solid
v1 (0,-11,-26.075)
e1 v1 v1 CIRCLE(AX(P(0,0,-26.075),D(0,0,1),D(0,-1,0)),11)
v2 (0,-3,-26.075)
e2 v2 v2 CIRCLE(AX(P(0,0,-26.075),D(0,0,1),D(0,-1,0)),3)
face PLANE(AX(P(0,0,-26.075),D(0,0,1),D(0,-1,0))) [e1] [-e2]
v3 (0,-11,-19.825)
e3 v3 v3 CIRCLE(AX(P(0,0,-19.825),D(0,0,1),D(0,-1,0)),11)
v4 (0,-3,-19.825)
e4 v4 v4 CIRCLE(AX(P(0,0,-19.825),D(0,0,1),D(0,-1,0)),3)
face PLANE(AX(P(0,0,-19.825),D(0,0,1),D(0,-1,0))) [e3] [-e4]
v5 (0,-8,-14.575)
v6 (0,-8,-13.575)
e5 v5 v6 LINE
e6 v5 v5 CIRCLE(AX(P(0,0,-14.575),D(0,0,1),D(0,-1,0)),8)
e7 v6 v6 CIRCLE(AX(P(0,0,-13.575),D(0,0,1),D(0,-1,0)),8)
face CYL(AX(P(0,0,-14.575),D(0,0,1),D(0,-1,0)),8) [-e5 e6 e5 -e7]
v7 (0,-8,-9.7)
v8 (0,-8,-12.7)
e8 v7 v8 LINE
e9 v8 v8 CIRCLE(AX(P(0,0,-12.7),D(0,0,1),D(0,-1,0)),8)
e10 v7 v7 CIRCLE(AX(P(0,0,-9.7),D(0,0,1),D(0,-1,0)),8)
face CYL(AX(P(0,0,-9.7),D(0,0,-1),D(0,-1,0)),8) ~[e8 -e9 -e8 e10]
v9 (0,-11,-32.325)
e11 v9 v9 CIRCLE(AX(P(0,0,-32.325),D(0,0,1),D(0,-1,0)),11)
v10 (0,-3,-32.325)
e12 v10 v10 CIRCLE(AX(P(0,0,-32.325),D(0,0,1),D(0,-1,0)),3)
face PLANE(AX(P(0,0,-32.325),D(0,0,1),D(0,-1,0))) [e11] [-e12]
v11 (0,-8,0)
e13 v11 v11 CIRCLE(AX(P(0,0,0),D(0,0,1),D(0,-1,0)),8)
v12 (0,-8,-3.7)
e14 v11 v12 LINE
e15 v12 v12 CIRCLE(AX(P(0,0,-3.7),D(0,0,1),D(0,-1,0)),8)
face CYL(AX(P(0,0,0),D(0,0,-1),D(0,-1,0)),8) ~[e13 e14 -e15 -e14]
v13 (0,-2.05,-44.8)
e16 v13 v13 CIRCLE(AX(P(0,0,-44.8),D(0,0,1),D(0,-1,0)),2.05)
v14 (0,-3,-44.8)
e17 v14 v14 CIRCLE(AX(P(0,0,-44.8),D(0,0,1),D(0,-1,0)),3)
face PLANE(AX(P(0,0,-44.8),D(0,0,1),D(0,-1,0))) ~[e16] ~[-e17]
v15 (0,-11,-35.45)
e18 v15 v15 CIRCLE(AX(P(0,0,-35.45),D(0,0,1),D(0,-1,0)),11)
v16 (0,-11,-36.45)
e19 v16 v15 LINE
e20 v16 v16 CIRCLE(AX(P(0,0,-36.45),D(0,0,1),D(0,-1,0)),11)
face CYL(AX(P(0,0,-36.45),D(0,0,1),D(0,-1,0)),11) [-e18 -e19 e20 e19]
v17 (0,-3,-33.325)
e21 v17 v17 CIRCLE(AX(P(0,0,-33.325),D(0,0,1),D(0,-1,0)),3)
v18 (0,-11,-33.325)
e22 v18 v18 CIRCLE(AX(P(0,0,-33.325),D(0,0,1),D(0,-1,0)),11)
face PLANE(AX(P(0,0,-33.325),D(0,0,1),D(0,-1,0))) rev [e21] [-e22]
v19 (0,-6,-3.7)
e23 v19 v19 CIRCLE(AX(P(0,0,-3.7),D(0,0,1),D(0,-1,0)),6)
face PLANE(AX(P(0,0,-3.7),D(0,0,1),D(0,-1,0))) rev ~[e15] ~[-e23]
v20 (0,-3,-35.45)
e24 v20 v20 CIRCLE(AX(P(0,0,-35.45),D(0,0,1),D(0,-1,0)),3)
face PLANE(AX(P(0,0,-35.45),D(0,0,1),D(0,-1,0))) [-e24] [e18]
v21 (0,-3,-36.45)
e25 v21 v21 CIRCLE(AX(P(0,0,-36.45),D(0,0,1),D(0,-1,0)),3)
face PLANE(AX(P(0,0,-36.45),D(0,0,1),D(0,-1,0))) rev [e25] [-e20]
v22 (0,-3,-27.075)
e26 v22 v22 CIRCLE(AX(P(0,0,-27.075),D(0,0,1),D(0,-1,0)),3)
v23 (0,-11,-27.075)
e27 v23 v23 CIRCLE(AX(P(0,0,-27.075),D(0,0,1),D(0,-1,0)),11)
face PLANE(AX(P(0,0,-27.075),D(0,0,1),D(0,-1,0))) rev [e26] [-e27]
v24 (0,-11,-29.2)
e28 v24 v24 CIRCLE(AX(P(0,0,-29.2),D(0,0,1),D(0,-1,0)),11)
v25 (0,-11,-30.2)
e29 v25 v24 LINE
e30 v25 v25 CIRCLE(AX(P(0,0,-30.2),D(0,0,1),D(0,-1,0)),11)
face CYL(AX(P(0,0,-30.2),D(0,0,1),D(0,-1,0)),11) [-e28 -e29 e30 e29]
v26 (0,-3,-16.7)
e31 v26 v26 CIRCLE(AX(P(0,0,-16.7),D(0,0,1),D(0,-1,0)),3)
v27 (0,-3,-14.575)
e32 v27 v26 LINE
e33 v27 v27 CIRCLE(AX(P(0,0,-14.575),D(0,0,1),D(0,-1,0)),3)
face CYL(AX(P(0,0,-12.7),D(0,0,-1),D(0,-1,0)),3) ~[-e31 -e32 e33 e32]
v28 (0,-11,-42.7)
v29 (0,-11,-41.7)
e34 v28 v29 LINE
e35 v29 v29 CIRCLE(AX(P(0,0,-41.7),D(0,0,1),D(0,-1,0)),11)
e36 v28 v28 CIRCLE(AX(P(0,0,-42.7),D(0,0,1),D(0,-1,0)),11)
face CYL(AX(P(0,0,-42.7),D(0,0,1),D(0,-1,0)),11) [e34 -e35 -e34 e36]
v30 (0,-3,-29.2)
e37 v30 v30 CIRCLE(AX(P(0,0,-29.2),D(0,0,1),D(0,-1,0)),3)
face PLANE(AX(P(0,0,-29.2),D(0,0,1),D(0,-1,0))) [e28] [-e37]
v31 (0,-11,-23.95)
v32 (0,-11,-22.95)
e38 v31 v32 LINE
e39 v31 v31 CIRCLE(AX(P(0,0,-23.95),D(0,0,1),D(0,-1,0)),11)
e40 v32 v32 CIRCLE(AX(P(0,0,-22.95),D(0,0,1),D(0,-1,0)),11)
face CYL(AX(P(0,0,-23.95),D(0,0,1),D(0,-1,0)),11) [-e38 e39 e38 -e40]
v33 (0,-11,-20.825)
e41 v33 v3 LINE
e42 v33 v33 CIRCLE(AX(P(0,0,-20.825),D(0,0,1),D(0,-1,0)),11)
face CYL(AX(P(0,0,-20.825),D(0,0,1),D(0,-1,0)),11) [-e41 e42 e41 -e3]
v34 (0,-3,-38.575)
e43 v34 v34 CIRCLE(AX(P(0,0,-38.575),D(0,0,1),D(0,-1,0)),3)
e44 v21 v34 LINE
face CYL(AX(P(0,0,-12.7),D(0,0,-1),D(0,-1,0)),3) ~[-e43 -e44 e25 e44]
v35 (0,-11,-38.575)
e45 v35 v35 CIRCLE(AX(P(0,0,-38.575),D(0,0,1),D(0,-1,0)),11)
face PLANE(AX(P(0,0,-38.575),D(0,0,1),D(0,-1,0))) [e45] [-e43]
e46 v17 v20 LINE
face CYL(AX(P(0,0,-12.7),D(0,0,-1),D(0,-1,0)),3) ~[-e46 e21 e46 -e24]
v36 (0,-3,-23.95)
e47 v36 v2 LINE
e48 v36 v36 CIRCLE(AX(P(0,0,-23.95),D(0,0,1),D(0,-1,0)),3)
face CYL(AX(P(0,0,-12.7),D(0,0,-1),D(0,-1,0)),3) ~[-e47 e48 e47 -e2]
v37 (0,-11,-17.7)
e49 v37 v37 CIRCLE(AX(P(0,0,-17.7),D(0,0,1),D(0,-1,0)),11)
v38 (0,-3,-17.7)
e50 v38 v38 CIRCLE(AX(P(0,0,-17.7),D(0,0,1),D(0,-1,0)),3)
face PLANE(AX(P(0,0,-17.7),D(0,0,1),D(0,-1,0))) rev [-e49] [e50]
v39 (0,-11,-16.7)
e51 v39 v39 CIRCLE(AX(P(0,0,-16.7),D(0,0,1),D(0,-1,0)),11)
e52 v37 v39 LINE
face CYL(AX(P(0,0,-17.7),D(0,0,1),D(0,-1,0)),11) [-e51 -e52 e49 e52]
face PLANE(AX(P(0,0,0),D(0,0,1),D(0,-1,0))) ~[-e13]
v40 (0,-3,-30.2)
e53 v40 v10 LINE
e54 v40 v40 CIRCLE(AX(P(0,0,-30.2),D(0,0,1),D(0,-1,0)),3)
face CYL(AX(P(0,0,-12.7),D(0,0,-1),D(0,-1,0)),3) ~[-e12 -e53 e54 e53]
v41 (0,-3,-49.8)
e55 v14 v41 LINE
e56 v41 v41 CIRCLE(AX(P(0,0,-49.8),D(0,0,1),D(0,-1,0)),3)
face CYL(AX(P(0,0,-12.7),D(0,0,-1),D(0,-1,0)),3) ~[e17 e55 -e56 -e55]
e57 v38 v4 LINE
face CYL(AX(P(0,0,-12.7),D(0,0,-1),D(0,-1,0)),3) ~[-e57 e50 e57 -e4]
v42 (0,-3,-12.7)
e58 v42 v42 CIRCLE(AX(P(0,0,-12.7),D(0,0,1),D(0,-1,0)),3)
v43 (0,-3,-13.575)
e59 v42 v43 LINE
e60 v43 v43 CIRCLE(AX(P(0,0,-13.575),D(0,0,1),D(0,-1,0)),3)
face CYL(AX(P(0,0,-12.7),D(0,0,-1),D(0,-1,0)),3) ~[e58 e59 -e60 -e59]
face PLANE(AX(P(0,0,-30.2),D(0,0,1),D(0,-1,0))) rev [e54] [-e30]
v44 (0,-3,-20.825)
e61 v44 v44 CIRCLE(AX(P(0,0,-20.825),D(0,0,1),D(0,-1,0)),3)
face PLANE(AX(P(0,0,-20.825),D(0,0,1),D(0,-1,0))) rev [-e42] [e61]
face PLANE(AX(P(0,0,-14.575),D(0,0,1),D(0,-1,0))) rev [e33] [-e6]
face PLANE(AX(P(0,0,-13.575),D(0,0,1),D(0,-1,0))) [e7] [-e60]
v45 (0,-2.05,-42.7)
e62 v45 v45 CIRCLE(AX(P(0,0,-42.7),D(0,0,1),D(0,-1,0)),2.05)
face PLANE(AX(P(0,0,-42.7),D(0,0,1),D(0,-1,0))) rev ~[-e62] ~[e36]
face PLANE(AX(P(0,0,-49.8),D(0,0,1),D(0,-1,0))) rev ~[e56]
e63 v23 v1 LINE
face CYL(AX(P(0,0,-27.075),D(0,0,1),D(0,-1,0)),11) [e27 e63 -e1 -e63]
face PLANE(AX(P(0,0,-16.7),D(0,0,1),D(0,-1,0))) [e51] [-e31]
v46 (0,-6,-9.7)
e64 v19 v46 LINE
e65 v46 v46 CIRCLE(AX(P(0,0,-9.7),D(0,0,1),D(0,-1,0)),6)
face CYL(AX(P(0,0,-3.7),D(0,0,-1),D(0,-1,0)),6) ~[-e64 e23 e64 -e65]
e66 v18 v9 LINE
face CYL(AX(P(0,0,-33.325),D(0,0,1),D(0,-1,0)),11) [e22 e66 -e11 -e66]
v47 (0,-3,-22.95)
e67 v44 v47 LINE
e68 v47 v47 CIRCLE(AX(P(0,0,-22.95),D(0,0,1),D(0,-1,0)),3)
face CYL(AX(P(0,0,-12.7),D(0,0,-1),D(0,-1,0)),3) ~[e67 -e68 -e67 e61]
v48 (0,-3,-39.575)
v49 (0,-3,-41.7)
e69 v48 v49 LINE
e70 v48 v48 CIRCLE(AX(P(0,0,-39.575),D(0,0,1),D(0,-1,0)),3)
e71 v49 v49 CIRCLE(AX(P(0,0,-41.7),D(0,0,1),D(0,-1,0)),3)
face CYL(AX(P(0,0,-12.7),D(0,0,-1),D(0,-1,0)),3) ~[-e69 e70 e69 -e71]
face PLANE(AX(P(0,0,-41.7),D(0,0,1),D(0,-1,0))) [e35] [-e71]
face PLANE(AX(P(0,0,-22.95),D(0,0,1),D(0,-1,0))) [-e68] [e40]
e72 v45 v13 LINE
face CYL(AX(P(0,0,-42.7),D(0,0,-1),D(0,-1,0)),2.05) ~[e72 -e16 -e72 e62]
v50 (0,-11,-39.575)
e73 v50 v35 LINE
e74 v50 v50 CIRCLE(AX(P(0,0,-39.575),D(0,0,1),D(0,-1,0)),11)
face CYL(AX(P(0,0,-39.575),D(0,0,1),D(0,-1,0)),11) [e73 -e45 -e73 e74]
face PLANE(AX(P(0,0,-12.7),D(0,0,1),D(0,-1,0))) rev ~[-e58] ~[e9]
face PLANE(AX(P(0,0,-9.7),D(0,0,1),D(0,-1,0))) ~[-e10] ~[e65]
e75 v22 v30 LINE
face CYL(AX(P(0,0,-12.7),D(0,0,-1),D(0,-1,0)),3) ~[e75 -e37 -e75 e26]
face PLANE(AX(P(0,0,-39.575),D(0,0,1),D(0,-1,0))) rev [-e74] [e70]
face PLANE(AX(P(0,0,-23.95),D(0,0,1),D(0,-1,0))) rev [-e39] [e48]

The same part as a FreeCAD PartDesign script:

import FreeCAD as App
import Part
import Sketcher
from FreeCAD import Vector
Q = App.Units.Quantity


def add_polygon(sketch, points):
    """Adds a closed chain of lines whose ends are joined by coincident constraints."""
    first, n = sketch.GeometryCount, len(points)
    for a, b in zip(points, points[1:] + points[:1]):
        sketch.addGeometry(Part.LineSegment(App.Vector(*a, 0), App.Vector(*b, 0)), False)
    for i in range(n):
        sketch.addConstraint(Sketcher.Constraint("Coincident", first + i, 2, first + (i + 1) % n, 1))

doc = App.newDocument("Part")
body = doc.addObject("PartDesign::Body", "Body")

# Sketch on YZ plane
sketch1 = doc.addObject("Sketcher::SketchObject", "Sketch")
body.addObject(sketch1)
sketch1.AttachmentSupport = (doc.YZ_Plane, [""])
sketch1.MapMode = "FlatFace"
add_polygon(sketch1, [(-3, -49.8), (0, -49.8), (0, 0), (-8, 0), (-8, -3.7), (-6, -3.7), (-6, -9.7), (-8, -9.7), (-8, -12.7), (-3, -12.7), (-3, -13.6), (-8, -13.6), (-8, -14.6), (-3, -14.6), (-3, -16.7), (-11, -16.7), (-11, -17.7), (-3, -17.7), (-3, -19.8), (-11, -19.8), (-11, -20.8), (-3, -20.8), (-3, -22.9), (-11, -22.9), (-11, -23.9), (-3, -23.9), (-3, -26.1), (-11, -26.1), (-11, -27.1), (-3, -27.1), (-3, -29.2), (-11, -29.2), (-11, -30.2), (-3, -30.2), (-3, -32.3), (-11, -32.3), (-11, -33.3), (-3, -33.3), (-3, -35.5), (-11, -35.5), (-11, -36.5), (-3, -36.5), (-3, -38.6), (-11, -38.6), (-11, -39.6), (-3, -39.6), (-3, -41.7), (-11, -41.7), (-11, -42.7), (-2, -42.7), (-2, -44.8), (-3, -44.8)])  # lines 0-51
sketch1.addConstraint(Sketcher.Constraint("Horizontal", 0))
sketch1.addConstraint(Sketcher.Constraint("Vertical", 1))
sketch1.addConstraint(Sketcher.Constraint("Horizontal", 2))
sketch1.addConstraint(Sketcher.Constraint("Vertical", 3))
sketch1.addConstraint(Sketcher.Constraint("Horizontal", 4))
sketch1.addConstraint(Sketcher.Constraint("Vertical", 5))
sketch1.addConstraint(Sketcher.Constraint("Horizontal", 6))
sketch1.addConstraint(Sketcher.Constraint("Vertical", 7))
sketch1.addConstraint(Sketcher.Constraint("Horizontal", 8))
sketch1.addConstraint(Sketcher.Constraint("Vertical", 9))
sketch1.addConstraint(Sketcher.Constraint("Horizontal", 10))
sketch1.addConstraint(Sketcher.Constraint("Vertical", 11))
sketch1.addConstraint(Sketcher.Constraint("Horizontal", 12))
sketch1.addConstraint(Sketcher.Constraint("Vertical", 13))
sketch1.addConstraint(Sketcher.Constraint("Horizontal", 14))
sketch1.addConstraint(Sketcher.Constraint("Vertical", 15))
sketch1.addConstraint(Sketcher.Constraint("Horizontal", 16))
sketch1.addConstraint(Sketcher.Constraint("Vertical", 17))
sketch1.addConstraint(Sketcher.Constraint("Horizontal", 18))
sketch1.addConstraint(Sketcher.Constraint("Vertical", 19))
sketch1.addConstraint(Sketcher.Constraint("Horizontal", 20))
sketch1.addConstraint(Sketcher.Constraint("Vertical", 21))
sketch1.addConstraint(Sketcher.Constraint("Horizontal", 22))
sketch1.addConstraint(Sketcher.Constraint("Vertical", 23))
sketch1.addConstraint(Sketcher.Constraint("Horizontal", 24))
sketch1.addConstraint(Sketcher.Constraint("Vertical", 25))
sketch1.addConstraint(Sketcher.Constraint("Horizontal", 26))
sketch1.addConstraint(Sketcher.Constraint("Vertical", 27))
sketch1.addConstraint(Sketcher.Constraint("Horizontal", 28))
sketch1.addConstraint(Sketcher.Constraint("Vertical", 29))
sketch1.addConstraint(Sketcher.Constraint("Horizontal", 30))
sketch1.addConstraint(Sketcher.Constraint("Vertical", 31))
sketch1.addConstraint(Sketcher.Constraint("Horizontal", 32))
sketch1.addConstraint(Sketcher.Constraint("Vertical", 33))
sketch1.addConstraint(Sketcher.Constraint("Horizontal", 34))
sketch1.addConstraint(Sketcher.Constraint("Vertical", 35))
sketch1.addConstraint(Sketcher.Constraint("Horizontal", 36))
sketch1.addConstraint(Sketcher.Constraint("Vertical", 37))
sketch1.addConstraint(Sketcher.Constraint("Horizontal", 38))
sketch1.addConstraint(Sketcher.Constraint("Vertical", 39))
sketch1.addConstraint(Sketcher.Constraint("Horizontal", 40))
sketch1.addConstraint(Sketcher.Constraint("Vertical", 41))
sketch1.addConstraint(Sketcher.Constraint("Horizontal", 42))
sketch1.addConstraint(Sketcher.Constraint("Vertical", 43))
sketch1.addConstraint(Sketcher.Constraint("Horizontal", 44))
sketch1.addConstraint(Sketcher.Constraint("Vertical", 45))
sketch1.addConstraint(Sketcher.Constraint("Horizontal", 46))
sketch1.addConstraint(Sketcher.Constraint("Vertical", 47))
sketch1.addConstraint(Sketcher.Constraint("Horizontal", 48))
sketch1.addConstraint(Sketcher.Constraint("Vertical", 49))
sketch1.addConstraint(Sketcher.Constraint("Horizontal", 50))
sketch1.addConstraint(Sketcher.Constraint("Vertical", 51))
sketch1.addConstraint(Sketcher.Constraint("Coincident", 1, 2, -1, 1))
sketch1.addConstraint(Sketcher.Constraint("Vertical", 3, 2, 6, 2))
sketch1.addConstraint(Sketcher.Constraint("Vertical", 7, 2, 10, 2))
sketch1.addConstraint(Sketcher.Constraint("Vertical", 9, 2, 12, 2))
sketch1.addConstraint(Sketcher.Constraint("Vertical", 13, 2, 16, 2))
sketch1.addConstraint(Sketcher.Constraint("Vertical", 15, 2, 18, 2))
sketch1.addConstraint(Sketcher.Constraint("Vertical", 17, 2, 20, 2))
sketch1.addConstraint(Sketcher.Constraint("Vertical", 19, 2, 22, 2))
sketch1.addConstraint(Sketcher.Constraint("Vertical", 21, 2, 24, 2))
sketch1.addConstraint(Sketcher.Constraint("Vertical", 23, 2, 26, 2))
sketch1.addConstraint(Sketcher.Constraint("Vertical", 25, 2, 28, 2))
sketch1.addConstraint(Sketcher.Constraint("Vertical", 27, 2, 30, 2))
sketch1.addConstraint(Sketcher.Constraint("Vertical", 29, 2, 32, 2))
sketch1.addConstraint(Sketcher.Constraint("Vertical", 31, 2, 34, 2))
sketch1.addConstraint(Sketcher.Constraint("Vertical", 33, 2, 36, 2))
sketch1.addConstraint(Sketcher.Constraint("Vertical", 35, 2, 38, 2))
sketch1.addConstraint(Sketcher.Constraint("Vertical", 37, 2, 40, 2))
sketch1.addConstraint(Sketcher.Constraint("Vertical", 39, 2, 42, 2))
sketch1.addConstraint(Sketcher.Constraint("Vertical", 41, 2, 44, 2))
sketch1.addConstraint(Sketcher.Constraint("Vertical", 43, 2, 46, 2))
sketch1.addConstraint(Sketcher.Constraint("Vertical", 45, 2, 50, 2))
sketch1.addConstraint(Sketcher.Constraint("Equal", 2, 14))
sketch1.addConstraint(Sketcher.Constraint("Equal", 0, 7))
sketch1.addConstraint(Sketcher.Constraint("Equal", 11, 15))
sketch1.addConstraint(Sketcher.Constraint("Equal", 13, 17))
sketch1.addConstraint(Sketcher.Constraint("Equal", 15, 19))
sketch1.addConstraint(Sketcher.Constraint("Equal", 17, 21))
sketch1.addConstraint(Sketcher.Constraint("Equal", 19, 23))
sketch1.addConstraint(Sketcher.Constraint("Equal", 21, 25))
sketch1.addConstraint(Sketcher.Constraint("Equal", 23, 27))
sketch1.addConstraint(Sketcher.Constraint("Equal", 25, 29))
sketch1.addConstraint(Sketcher.Constraint("Equal", 27, 31))
sketch1.addConstraint(Sketcher.Constraint("Equal", 29, 33))
sketch1.addConstraint(Sketcher.Constraint("Equal", 31, 35))
sketch1.addConstraint(Sketcher.Constraint("Equal", 33, 37))
sketch1.addConstraint(Sketcher.Constraint("Equal", 35, 39))
sketch1.addConstraint(Sketcher.Constraint("Equal", 37, 41))
sketch1.addConstraint(Sketcher.Constraint("Equal", 39, 43))
sketch1.addConstraint(Sketcher.Constraint("Equal", 41, 45))
sketch1.addConstraint(Sketcher.Constraint("Equal", 43, 47))
sketch1.addConstraint(Sketcher.Constraint("Equal", 12, 51))
sketch1.addConstraint(Sketcher.Constraint("DistanceX", 0, 1, 0, 2, Q("3 mm")))
sketch1.addConstraint(Sketcher.Constraint("DistanceX", 2, 2, 2, 1, Q("8 mm")))
sketch1.addConstraint(Sketcher.Constraint("DistanceY", 5, 2, 5, 1, Q("6 mm")))
sketch1.addConstraint(Sketcher.Constraint("DistanceY", 11, 2, 11, 1, Q("1 mm")))
sketch1.addConstraint(Sketcher.Constraint("DistanceY", 1, 1, 1, 2, Q("49.8 mm")))
sketch1.addConstraint(Sketcher.Constraint("DistanceY", 3, 2, 3, 1, Q("3.7 mm")))
sketch1.addConstraint(Sketcher.Constraint("DistanceX", 4, 2, -1, 1, Q("6 mm")))
sketch1.addConstraint(Sketcher.Constraint("DistanceY", 15, 2, 7, 2, Q("5 mm")))
sketch1.addConstraint(Sketcher.Constraint("DistanceY", 51, 2, 48, 2, Q("7.1 mm")))
sketch1.addConstraint(Sketcher.Constraint("DistanceX", 48, 2, -1, 1, Q("2.05 mm")))
revolution = doc.addObject("PartDesign::Revolution", "Revolution")
body.addObject(revolution)
revolution.Profile = sketch1
revolution.ReferenceAxis = (sketch1, ["V_Axis"])
revolution.Angle = 360

doc.recompute()
